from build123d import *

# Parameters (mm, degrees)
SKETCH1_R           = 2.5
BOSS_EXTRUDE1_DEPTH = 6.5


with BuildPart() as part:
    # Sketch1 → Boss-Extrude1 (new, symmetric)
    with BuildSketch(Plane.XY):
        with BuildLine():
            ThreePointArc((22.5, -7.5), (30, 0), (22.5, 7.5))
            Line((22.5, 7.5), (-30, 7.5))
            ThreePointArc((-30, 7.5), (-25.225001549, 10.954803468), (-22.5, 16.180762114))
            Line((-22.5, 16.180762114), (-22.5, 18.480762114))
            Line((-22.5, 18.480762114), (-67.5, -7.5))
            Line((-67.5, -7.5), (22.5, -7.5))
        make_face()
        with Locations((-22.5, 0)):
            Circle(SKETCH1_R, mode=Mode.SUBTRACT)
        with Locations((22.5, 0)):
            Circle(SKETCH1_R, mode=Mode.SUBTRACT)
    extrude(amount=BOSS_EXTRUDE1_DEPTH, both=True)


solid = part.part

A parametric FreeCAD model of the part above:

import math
import FreeCAD as App
import Part
import Sketcher

V = App.Vector
Q = App.Units.Quantity

doc = App.newDocument("Part")
body = doc.addObject("PartDesign::Body", "Body")

sketch1 = body.newObject("Sketcher::SketchObject", "Sketch")
sketch1.AttachmentSupport = (doc.getObject("XY_Plane"), [""])
sketch1.MapMode = "FlatFace"
sketch1.addGeometry([
    Part.ArcOfCircle(Part.Circle(V(22.5, 0, 0), V(0, 0, 1), 7.5), math.radians(-90), math.radians(90)),
    Part.LineSegment(V(22.5, 7.5, 0), V(-30, 7.5, 0)),
    Part.ArcOfCircle(Part.Circle(V(-34.9, 19.3, 0), V(0, 0, 1), 12.8), math.radians(-67), math.radians(-14)),
    Part.LineSegment(V(-22.5, 16.2, 0), V(-22.5, 18.5, 0)),
    Part.LineSegment(V(-22.5, 18.5, 0), V(-67.5, -7.5, 0)),
    Part.LineSegment(V(-67.5, -7.5, 0), V(22.5, -7.5, 0)),
    Part.Circle(V(-22.5, 0, 0), V(0, 0, 1), 2.5),
    Part.Circle(V(22.5, 0, 0), V(0, 0, 1), 2.5),
], False)
sketch1.addConstraint([
    Sketcher.Constraint("Tangent", 0, 2, 1, 1),
    Sketcher.Constraint("Coincident", 1, 2, 2, 1),
    Sketcher.Constraint("Coincident", 2, 2, 3, 1),
    Sketcher.Constraint("Coincident", 3, 2, 4, 1),
    Sketcher.Constraint("Coincident", 4, 2, 5, 1),
    Sketcher.Constraint("Tangent", 5, 2, 0, 1),
    Sketcher.Constraint("Horizontal", 1),
    Sketcher.Constraint("Vertical", 3),
    Sketcher.Constraint("Horizontal", 5),
    Sketcher.Constraint("Coincident", 7, 3, 0, 3),
    Sketcher.Constraint("Equal", 6, 7),
    Sketcher.Constraint("Symmetric", 0, 3, 6, 3, -1, 1),
    Sketcher.Constraint("PointOnObject", 0, 3, -1),
    Sketcher.Constraint("Vertical", 6, 3, 2, 2),
    Sketcher.Constraint("Diameter", 6, 5.0),
    Sketcher.Constraint("Radius", 0, 7.5),
    Sketcher.Constraint("DistanceX", 5, 1, 5, 2, 90.0),
    Sketcher.Constraint("Angle", 4, Q("-150 deg")),
    Sketcher.Constraint("DistanceX", 1, 2, 1, 1, 52.5),
    Sketcher.Constraint("DistanceY", 3, 1, 3, 2, 2.3),
    Sketcher.Constraint("DistanceX", 1, 2, -1, 1, 30.0),
    Sketcher.Constraint("Radius", 2, 12.82185),
])
pad1 = body.newObject("PartDesign::Pad", "Pad")
pad1.Profile = sketch1
pad1.Length = 13
pad1.Midplane = True

doc.recompute()
